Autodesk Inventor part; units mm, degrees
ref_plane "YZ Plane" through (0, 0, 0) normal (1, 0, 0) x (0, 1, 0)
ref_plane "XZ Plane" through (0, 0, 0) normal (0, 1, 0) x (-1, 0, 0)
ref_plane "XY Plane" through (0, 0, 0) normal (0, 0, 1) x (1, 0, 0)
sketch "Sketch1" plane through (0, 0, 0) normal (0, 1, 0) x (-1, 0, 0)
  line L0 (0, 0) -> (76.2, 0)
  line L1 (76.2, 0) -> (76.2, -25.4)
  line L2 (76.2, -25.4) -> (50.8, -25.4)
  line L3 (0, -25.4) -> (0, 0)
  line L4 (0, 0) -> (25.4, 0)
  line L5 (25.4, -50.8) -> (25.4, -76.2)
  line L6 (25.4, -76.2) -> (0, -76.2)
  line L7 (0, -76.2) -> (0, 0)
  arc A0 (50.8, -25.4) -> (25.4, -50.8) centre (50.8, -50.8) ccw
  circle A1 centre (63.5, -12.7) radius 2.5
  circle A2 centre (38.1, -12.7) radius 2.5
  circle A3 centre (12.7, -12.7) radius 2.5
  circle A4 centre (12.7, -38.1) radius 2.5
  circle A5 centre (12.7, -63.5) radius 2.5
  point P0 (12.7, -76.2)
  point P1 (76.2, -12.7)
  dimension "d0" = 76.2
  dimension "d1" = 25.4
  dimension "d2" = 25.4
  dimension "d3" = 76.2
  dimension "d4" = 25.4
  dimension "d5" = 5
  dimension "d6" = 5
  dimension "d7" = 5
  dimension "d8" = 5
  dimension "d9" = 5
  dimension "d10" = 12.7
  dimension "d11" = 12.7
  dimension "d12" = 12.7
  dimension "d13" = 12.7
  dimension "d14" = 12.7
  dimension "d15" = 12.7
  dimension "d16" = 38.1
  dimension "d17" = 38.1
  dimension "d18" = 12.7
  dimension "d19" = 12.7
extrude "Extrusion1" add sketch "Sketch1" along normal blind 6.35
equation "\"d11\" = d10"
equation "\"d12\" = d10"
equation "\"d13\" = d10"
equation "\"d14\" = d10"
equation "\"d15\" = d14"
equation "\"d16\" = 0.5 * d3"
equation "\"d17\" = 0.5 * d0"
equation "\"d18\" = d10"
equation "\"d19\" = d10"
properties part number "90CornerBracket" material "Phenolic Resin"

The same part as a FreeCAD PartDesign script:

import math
import FreeCAD as App
import Part
import Sketcher
from FreeCAD import Vector
Q = App.Units.Quantity

doc = App.newDocument("Part")
body = doc.addObject("PartDesign::Body", "Body")

# Sketch on XZ plane
sketch1 = body.newObject("Sketcher::SketchObject", "Sketch")
sketch1.AttachmentSupport = (doc.getObject("XZ_Plane"), [""])
sketch1.MapMode = "FlatFace"
sketch1.addGeometry([
    Part.LineSegment(Vector(-76.2, 0, 0), Vector(0, 0, 0)),  # 0
    Part.LineSegment(Vector(0, 0, 0), Vector(0, -76.2, 0)),  # 1
    Part.LineSegment(Vector(0, -76.2, 0), Vector(-25.4, -76.2, 0)),  # 2
    Part.LineSegment(Vector(-25.4, -76.2, 0), Vector(-25.4, -50.8, 0)),  # 3
    Part.ArcOfCircle(Part.Circle(Vector(-50.8, -50.8, 0), Vector(0, 0, 1), 25.4), math.radians(0), math.radians(90)),  # 4
    Part.LineSegment(Vector(-50.8, -25.4, 0), Vector(-76.2, -25.4, 0)),  # 5
    Part.LineSegment(Vector(-76.2, -25.4, 0), Vector(-76.2, 0, 0)),  # 6
    Part.Circle(Vector(-12.7, -63.5, 0), Vector(0, 0, 1), 2.5),  # 7
    Part.Circle(Vector(-12.7, -38.1, 0), Vector(0, 0, 1), 2.5),  # 8
    Part.Circle(Vector(-12.7, -12.7, 0), Vector(0, 0, 1), 2.5),  # 9
    Part.Circle(Vector(-38.1, -12.7, 0), Vector(0, 0, 1), 2.5),  # 10
    Part.Circle(Vector(-63.5, -12.7, 0), Vector(0, 0, 1), 2.5),  # 11
], False)
sketch1.addConstraint([
    Sketcher.Constraint("Coincident", 0, 2, 1, 1),
    Sketcher.Constraint("Coincident", 1, 2, 2, 1),
    Sketcher.Constraint("Coincident", 2, 2, 3, 1),
    Sketcher.Constraint("Tangent", 3, 2, 4, 1),
    Sketcher.Constraint("Tangent", 4, 2, 5, 1),
    Sketcher.Constraint("Coincident", 5, 2, 6, 1),
    Sketcher.Constraint("Coincident", 6, 2, 0, 1),
    Sketcher.Constraint("Horizontal", 0),
    Sketcher.Constraint("Vertical", 1),
    Sketcher.Constraint("Horizontal", 2),
    Sketcher.Constraint("Vertical", 3),
    Sketcher.Constraint("Horizontal", 5),
    Sketcher.Constraint("Vertical", 6),
    Sketcher.Constraint("Coincident", 0, 2, -1, 1),
    Sketcher.Constraint("Equal", 7, 8),
    Sketcher.Constraint("Equal", 8, 9),
    Sketcher.Constraint("Equal", 9, 10),
    Sketcher.Constraint("Equal", 10, 11),
    Sketcher.Constraint("Horizontal", 9, 3, 10, 3),
    Sketcher.Constraint("Horizontal", 10, 3, 11, 3),
    Sketcher.Constraint("Vertical", 7, 3, 8, 3),
    Sketcher.Constraint("Vertical", 8, 3, 9, 3),
    Sketcher.Constraint("Equal", 2, 5),
    Sketcher.Constraint("Equal", 0, 1),
    Sketcher.Constraint("Equal", 5, 3),
    Sketcher.Constraint("Radius", 4, Q("1 in")),
    Sketcher.Constraint("DistanceX", 0, 1, 0, 2, Q("3 in")),
    Sketcher.Constraint("DistanceY", 7, 3, 8, 3, Q("1 in")),
    Sketcher.Constraint("DistanceY", 8, 3, 9, 3, Q("1 in")),
    Sketcher.Constraint("DistanceX", 10, 3, 9, 3, Q("1 in")),
    Sketcher.Constraint("DistanceX", 11, 3, 10, 3, Q("1 in")),
    Sketcher.Constraint("DistanceX", 7, 3, -1, 1, Q("0.5 in")),
    Sketcher.Constraint("DistanceY", 8, 3, -1, 1, Q("1.5 in")),
    Sketcher.Constraint("Diameter", 7, 5.0),
])
pad1 = body.newObject("PartDesign::Pad", "Pad")
pad1.Profile = sketch1
pad1.Length = Q("0.25 in")
pad1.Reversed = True

doc.recompute()
